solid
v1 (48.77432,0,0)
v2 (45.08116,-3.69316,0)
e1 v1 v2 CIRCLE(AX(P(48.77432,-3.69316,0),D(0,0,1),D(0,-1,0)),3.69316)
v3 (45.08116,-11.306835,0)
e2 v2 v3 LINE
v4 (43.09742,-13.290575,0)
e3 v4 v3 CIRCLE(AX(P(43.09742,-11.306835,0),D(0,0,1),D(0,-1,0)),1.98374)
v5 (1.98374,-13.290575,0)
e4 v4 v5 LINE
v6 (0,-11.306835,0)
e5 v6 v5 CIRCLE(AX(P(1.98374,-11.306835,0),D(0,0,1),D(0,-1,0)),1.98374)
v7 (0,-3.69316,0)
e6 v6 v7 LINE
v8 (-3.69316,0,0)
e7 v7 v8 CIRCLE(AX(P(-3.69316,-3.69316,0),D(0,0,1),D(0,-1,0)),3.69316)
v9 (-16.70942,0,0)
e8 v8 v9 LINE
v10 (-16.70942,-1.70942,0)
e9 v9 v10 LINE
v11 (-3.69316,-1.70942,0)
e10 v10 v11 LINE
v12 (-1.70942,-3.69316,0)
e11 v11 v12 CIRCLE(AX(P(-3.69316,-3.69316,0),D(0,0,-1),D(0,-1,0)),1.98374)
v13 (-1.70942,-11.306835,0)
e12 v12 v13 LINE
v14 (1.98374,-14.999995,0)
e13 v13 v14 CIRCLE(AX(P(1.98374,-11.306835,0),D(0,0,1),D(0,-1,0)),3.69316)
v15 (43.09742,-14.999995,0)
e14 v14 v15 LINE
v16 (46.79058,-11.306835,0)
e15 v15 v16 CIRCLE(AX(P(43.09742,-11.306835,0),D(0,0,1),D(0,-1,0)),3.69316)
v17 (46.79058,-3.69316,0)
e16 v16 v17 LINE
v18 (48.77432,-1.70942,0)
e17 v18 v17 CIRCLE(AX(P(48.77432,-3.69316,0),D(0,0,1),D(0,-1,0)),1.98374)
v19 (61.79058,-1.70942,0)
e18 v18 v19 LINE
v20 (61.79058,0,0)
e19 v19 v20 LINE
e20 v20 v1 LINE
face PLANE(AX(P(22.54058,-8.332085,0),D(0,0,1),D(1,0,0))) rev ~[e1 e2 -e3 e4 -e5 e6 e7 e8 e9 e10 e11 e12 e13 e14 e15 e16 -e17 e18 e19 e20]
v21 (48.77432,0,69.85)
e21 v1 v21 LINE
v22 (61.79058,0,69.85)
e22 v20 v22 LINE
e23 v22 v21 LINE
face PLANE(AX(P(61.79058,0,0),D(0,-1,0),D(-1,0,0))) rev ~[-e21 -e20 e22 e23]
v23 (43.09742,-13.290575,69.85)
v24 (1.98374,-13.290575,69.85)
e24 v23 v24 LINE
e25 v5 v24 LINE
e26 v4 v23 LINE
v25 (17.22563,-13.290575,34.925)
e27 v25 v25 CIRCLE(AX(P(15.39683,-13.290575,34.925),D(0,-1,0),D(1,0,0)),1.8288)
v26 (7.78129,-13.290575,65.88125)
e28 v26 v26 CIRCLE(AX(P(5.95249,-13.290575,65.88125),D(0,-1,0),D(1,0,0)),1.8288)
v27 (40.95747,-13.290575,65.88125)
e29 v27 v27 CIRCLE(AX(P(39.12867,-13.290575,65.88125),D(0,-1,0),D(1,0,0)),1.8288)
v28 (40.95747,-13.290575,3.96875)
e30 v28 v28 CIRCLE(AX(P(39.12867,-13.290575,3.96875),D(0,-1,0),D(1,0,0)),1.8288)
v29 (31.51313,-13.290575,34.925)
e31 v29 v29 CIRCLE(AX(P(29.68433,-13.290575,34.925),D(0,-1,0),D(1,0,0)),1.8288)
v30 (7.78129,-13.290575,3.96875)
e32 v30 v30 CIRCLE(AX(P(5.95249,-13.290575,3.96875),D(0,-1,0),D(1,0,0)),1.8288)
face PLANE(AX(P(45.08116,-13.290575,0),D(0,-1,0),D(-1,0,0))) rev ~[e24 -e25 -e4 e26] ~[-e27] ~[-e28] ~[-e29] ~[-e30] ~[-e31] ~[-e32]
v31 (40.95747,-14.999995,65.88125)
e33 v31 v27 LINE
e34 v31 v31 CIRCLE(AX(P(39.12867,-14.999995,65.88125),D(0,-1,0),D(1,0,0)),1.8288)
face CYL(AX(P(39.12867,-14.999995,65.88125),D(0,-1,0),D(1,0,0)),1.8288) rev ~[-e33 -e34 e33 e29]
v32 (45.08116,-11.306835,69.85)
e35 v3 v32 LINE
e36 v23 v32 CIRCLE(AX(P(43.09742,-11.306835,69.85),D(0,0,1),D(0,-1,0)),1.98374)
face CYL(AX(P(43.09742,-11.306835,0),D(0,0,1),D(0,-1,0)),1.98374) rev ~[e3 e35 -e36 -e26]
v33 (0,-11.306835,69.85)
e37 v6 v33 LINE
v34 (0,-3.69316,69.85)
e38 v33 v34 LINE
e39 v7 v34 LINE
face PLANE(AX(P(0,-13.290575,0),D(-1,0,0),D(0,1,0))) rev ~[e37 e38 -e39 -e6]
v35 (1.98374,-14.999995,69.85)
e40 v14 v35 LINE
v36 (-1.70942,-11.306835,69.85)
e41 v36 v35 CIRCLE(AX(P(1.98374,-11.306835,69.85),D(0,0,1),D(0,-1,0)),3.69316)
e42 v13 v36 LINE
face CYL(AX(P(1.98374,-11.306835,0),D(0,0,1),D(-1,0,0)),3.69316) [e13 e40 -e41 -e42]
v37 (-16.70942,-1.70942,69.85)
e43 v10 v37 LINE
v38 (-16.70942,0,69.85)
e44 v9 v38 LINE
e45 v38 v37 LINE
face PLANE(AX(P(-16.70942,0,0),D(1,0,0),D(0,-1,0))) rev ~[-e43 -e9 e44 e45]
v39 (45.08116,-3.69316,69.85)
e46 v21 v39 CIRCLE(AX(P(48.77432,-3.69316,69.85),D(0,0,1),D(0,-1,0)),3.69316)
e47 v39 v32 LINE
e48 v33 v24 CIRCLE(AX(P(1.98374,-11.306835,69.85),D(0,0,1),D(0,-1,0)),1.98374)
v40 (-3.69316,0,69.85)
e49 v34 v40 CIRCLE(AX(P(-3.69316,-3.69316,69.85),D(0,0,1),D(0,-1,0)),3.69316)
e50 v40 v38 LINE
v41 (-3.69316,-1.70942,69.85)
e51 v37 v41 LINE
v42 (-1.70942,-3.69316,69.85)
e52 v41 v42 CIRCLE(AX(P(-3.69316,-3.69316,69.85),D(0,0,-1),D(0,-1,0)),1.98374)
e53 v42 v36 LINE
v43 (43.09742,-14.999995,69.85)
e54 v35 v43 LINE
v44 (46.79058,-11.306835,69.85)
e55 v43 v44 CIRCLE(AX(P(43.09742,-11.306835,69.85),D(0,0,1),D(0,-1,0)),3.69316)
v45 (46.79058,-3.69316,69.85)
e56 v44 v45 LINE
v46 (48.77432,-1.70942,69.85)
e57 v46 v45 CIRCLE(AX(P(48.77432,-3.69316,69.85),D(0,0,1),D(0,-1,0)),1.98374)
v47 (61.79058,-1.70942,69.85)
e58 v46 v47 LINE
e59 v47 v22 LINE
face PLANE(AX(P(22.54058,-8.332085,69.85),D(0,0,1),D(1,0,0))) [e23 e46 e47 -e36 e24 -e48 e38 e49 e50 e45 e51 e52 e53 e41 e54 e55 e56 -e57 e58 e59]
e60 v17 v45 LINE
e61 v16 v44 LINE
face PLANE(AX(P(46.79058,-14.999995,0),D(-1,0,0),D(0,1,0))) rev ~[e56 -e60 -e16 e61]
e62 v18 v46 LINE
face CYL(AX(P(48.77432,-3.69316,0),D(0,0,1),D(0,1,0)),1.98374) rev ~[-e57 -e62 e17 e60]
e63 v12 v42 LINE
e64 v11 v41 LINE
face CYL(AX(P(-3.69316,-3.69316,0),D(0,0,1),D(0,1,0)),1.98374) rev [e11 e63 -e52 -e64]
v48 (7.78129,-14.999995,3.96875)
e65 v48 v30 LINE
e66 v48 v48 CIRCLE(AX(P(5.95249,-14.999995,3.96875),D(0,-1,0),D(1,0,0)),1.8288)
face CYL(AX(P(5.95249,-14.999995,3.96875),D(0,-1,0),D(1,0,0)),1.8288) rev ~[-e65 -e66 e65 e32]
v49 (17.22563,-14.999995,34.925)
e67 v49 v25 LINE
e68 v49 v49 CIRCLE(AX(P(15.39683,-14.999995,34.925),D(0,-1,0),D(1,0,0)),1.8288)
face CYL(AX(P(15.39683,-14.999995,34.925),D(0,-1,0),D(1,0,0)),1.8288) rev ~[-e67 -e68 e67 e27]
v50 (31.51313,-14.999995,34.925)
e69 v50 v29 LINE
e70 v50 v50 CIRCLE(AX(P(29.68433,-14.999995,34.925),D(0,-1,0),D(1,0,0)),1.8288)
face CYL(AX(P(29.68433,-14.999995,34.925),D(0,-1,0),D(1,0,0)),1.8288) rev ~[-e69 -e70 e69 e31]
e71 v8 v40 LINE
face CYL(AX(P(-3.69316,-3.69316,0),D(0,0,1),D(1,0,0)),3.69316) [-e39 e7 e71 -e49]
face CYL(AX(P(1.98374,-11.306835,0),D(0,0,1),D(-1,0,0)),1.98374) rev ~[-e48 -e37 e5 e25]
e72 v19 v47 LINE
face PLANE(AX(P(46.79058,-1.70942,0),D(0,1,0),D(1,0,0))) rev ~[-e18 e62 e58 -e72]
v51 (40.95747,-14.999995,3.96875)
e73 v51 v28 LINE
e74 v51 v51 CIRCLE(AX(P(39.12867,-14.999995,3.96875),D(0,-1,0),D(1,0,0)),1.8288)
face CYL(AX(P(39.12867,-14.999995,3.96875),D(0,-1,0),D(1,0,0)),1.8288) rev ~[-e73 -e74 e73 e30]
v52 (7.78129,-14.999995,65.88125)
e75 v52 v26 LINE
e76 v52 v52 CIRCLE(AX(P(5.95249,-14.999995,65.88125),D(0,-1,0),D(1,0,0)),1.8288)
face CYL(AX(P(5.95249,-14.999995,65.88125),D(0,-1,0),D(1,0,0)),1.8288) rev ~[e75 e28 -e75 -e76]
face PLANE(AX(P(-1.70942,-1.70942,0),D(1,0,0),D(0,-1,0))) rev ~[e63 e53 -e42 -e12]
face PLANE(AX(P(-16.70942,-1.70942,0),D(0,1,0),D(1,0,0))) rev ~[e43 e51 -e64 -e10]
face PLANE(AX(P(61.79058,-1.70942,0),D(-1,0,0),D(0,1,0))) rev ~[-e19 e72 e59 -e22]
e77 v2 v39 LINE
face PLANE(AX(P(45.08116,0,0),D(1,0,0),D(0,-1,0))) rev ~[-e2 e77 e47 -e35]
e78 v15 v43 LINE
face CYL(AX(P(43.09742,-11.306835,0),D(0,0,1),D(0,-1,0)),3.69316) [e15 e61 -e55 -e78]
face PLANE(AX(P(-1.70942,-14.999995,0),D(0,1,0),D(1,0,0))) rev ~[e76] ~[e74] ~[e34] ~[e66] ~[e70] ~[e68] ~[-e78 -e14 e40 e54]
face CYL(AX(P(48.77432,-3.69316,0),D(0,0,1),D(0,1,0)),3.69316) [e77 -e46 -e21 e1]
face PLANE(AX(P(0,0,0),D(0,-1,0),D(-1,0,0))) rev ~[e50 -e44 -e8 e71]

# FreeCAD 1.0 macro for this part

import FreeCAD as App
import Part
import Sketcher
Q = App.Units.Quantity


def edges_at(feature, points):
    """Names of the edges that pass closest to the given points."""
    edges = feature.Shape.Edges
    near = lambda p: min(range(len(edges)), key=lambda i: edges[i].distToShape(Part.Vertex(*p))[0])
    return sorted({f"Edge{near(p) + 1}" for p in points})

doc = App.newDocument("Part")
body = doc.addObject("PartDesign::Body", "Body")

sketch1 = doc.addObject("Sketcher::SketchObject", "Sketch")
body.addObject(sketch1)
sketch1.AttachmentSupport = (doc.XY_Plane, [""])
sketch1.MapMode = "FlatFace"
sketch1.addGeometry(Part.LineSegment(App.Vector(0, -13.290575, 0), App.Vector(0, 0, 0)), False)
sketch1.addGeometry(Part.LineSegment(App.Vector(0, 0, 0), App.Vector(-16.70942, 0, 0)), False)
sketch1.addGeometry(Part.LineSegment(App.Vector(-16.70942, 0, 0), App.Vector(-16.70942, -1.70942, 0)), False)
sketch1.addGeometry(Part.LineSegment(App.Vector(-16.70942, -1.70942, 0), App.Vector(-1.70942, -1.70942, 0)), False)
sketch1.addGeometry(Part.LineSegment(App.Vector(-1.70942, -1.70942, 0), App.Vector(-1.70942, -14.999995, 0)), False)
sketch1.addGeometry(Part.LineSegment(App.Vector(-1.70942, -14.999995, 0), App.Vector(46.79058, -14.999995, 0)), False)
sketch1.addGeometry(Part.LineSegment(App.Vector(46.79058, -14.999995, 0), App.Vector(46.79058, -1.70942, 0)), False)
sketch1.addGeometry(Part.LineSegment(App.Vector(46.79058, -1.70942, 0), App.Vector(61.79058, -1.70942, 0)), False)
sketch1.addGeometry(Part.LineSegment(App.Vector(61.79058, -1.70942, 0), App.Vector(61.79058, 0, 0)), False)
sketch1.addGeometry(Part.LineSegment(App.Vector(61.79058, 0, 0), App.Vector(45.08116, 0, 0)), False)
sketch1.addGeometry(Part.LineSegment(App.Vector(45.08116, 0, 0), App.Vector(45.08116, -13.290575, 0)), False)
sketch1.addGeometry(Part.LineSegment(App.Vector(45.08116, -13.290575, 0), App.Vector(0, -13.290575, 0)), False)
sketch1.addConstraint(Sketcher.Constraint("Coincident", 0, 2, 1, 1))
sketch1.addConstraint(Sketcher.Constraint("Coincident", 1, 2, 2, 1))
sketch1.addConstraint(Sketcher.Constraint("Coincident", 2, 2, 3, 1))
sketch1.addConstraint(Sketcher.Constraint("Coincident", 3, 2, 4, 1))
sketch1.addConstraint(Sketcher.Constraint("Coincident", 4, 2, 5, 1))
sketch1.addConstraint(Sketcher.Constraint("Coincident", 5, 2, 6, 1))
sketch1.addConstraint(Sketcher.Constraint("Coincident", 6, 2, 7, 1))
sketch1.addConstraint(Sketcher.Constraint("Coincident", 7, 2, 8, 1))
sketch1.addConstraint(Sketcher.Constraint("Coincident", 8, 2, 9, 1))
sketch1.addConstraint(Sketcher.Constraint("Coincident", 9, 2, 10, 1))
sketch1.addConstraint(Sketcher.Constraint("Coincident", 10, 2, 11, 1))
sketch1.addConstraint(Sketcher.Constraint("Coincident", 11, 2, 0, 1))
sketch1.addConstraint(Sketcher.Constraint("Vertical", 0))
sketch1.addConstraint(Sketcher.Constraint("Horizontal", 1))
sketch1.addConstraint(Sketcher.Constraint("Vertical", 2))
sketch1.addConstraint(Sketcher.Constraint("Horizontal", 3))
sketch1.addConstraint(Sketcher.Constraint("Vertical", 4))
sketch1.addConstraint(Sketcher.Constraint("Horizontal", 5))
sketch1.addConstraint(Sketcher.Constraint("Vertical", 6))
sketch1.addConstraint(Sketcher.Constraint("Horizontal", 7))
sketch1.addConstraint(Sketcher.Constraint("Vertical", 8))
sketch1.addConstraint(Sketcher.Constraint("Horizontal", 9))
sketch1.addConstraint(Sketcher.Constraint("Vertical", 10))
sketch1.addConstraint(Sketcher.Constraint("Horizontal", 11))
sketch1.addConstraint(Sketcher.Constraint("Coincident", 0, 2, -1, 1))
sketch1.addConstraint(Sketcher.Constraint("PointOnObject", 8, 2, -1))
sketch1.addConstraint(Sketcher.Constraint("Horizontal", 3, 2, 6, 2))
sketch1.addConstraint(Sketcher.Constraint("Equal", 3, 7))
sketch1.addConstraint(Sketcher.Constraint("Equal", 1, 9))
sketch1.addConstraint(Sketcher.Constraint("Equal", 0, 4))
sketch1.addConstraint(Sketcher.Constraint("DistanceX", 3, 1, 3, 2, Q("15 mm")))
sketch1.addConstraint(Sketcher.Constraint("DistanceX", 5, 1, 5, 2, Q("48.5 mm")))
sketch1.addConstraint(Sketcher.Constraint("DistanceX", 1, 2, 1, 1, Q("16.70942 mm")))
sketch1.addConstraint(Sketcher.Constraint("DistanceY", 2, 2, 2, 1, Q("1.70942 mm")))
sketch1.addConstraint(Sketcher.Constraint("DistanceY", 0, 1, 0, 2, Q("13.290575 mm")))
pad1 = doc.addObject("PartDesign::Pad", "Pad")
body.addObject(pad1)
pad1.Profile = sketch1
pad1.Length = 69.85
doc.recompute()

fillet = doc.addObject("PartDesign::Fillet", "Fillet")
body.addObject(fillet)
fillet.Base = (pad1, edges_at(pad1, [
    (46.791, -15, 34.925),
    (-1.709, -15, 34.925),
    (0, 0, 34.925),
    (45.081, 0, 34.925),
]))
fillet.Radius = 3.69316
doc.recompute()

fillet2 = doc.addObject("PartDesign::Fillet", "Fillet001")
body.addObject(fillet2)
fillet2.Base = (fillet, edges_at(fillet, [
    (0, -13.291, 34.925),
    (45.081, -13.291, 34.925),
    (46.791, -1.709, 34.925),
    (-1.709, -1.709, 34.925),
]))
fillet2.Radius = 1.98374

sketch2 = doc.addObject("Sketcher::SketchObject", "Sketch001")
body.addObject(sketch2)
sketch2.AttachmentSupport = (doc.XZ_Plane, [""])
sketch2.MapMode = "FlatFace"
sketch2.AttachmentOffset = App.Placement(App.Vector(0, 0, 14.999995), App.Rotation())
sketch2.addGeometry(Part.Circle(App.Vector(39.12867, 65.88125, 0), App.Vector(0, 0, 1), 1.8288), False)
sketch2.addGeometry(Part.Circle(App.Vector(5.95249, 65.88125, 0), App.Vector(0, 0, 1), 1.8288), False)
sketch2.addGeometry(Part.Circle(App.Vector(5.95249, 3.96875, 0), App.Vector(0, 0, 1), 1.8288), False)
sketch2.addGeometry(Part.Circle(App.Vector(39.12867, 3.96875, 0), App.Vector(0, 0, 1), 1.8288), False)
sketch2.addGeometry(Part.Circle(App.Vector(15.39683, 34.925, 0), App.Vector(0, 0, 1), 1.8288), False)
sketch2.addGeometry(Part.Circle(App.Vector(29.68433, 34.925, 0), App.Vector(0, 0, 1), 1.8288), False)
sketch2.addConstraint(Sketcher.Constraint("Equal", 0, 1))
sketch2.addConstraint(Sketcher.Constraint("Equal", 1, 2))
sketch2.addConstraint(Sketcher.Constraint("Equal", 2, 3))
sketch2.addConstraint(Sketcher.Constraint("Equal", 3, 4))
sketch2.addConstraint(Sketcher.Constraint("Equal", 4, 5))
sketch2.addConstraint(Sketcher.Constraint("Horizontal", 0, 3, 1, 3))
sketch2.addConstraint(Sketcher.Constraint("Horizontal", 2, 3, 3, 3))
sketch2.addConstraint(Sketcher.Constraint("Horizontal", 4, 3, 5, 3))
sketch2.addConstraint(Sketcher.Constraint("Vertical", 1, 3, 2, 3))
sketch2.addConstraint(Sketcher.Constraint("Vertical", 0, 3, 3, 3))
sketch2.addConstraint(Sketcher.Constraint("Diameter", 0, Q("3.6576 mm")))
sketch2.addConstraint(Sketcher.Constraint("DistanceY", -1, 1, 4, 3, Q("34.925 mm")))
sketch2.addConstraint(Sketcher.Constraint("DistanceY", 2, 3, 1, 3, Q("61.9125 mm")))
sketch2.addConstraint(Sketcher.Constraint("DistanceX", 4, 3, 5, 3, Q("14.2875 mm")))
sketch2.addConstraint(Sketcher.Constraint("DistanceX", -1, 1, 0, 3, Q("39.12867 mm")))
sketch2.addConstraint(Sketcher.Constraint("DistanceY", -1, 1, 0, 3, Q("65.88125 mm")))
sketch2.addConstraint(Sketcher.Constraint("DistanceX", -1, 1, 1, 3, Q("5.95249 mm")))
sketch2.addConstraint(Sketcher.Constraint("DistanceX", -1, 1, 4, 3, Q("15.39683 mm")))
pocket1 = doc.addObject("PartDesign::Pocket", "Pocket")
body.addObject(pocket1)
pocket1.Profile = sketch2
pocket1.Type = "ThroughAll"

doc.recompute()
